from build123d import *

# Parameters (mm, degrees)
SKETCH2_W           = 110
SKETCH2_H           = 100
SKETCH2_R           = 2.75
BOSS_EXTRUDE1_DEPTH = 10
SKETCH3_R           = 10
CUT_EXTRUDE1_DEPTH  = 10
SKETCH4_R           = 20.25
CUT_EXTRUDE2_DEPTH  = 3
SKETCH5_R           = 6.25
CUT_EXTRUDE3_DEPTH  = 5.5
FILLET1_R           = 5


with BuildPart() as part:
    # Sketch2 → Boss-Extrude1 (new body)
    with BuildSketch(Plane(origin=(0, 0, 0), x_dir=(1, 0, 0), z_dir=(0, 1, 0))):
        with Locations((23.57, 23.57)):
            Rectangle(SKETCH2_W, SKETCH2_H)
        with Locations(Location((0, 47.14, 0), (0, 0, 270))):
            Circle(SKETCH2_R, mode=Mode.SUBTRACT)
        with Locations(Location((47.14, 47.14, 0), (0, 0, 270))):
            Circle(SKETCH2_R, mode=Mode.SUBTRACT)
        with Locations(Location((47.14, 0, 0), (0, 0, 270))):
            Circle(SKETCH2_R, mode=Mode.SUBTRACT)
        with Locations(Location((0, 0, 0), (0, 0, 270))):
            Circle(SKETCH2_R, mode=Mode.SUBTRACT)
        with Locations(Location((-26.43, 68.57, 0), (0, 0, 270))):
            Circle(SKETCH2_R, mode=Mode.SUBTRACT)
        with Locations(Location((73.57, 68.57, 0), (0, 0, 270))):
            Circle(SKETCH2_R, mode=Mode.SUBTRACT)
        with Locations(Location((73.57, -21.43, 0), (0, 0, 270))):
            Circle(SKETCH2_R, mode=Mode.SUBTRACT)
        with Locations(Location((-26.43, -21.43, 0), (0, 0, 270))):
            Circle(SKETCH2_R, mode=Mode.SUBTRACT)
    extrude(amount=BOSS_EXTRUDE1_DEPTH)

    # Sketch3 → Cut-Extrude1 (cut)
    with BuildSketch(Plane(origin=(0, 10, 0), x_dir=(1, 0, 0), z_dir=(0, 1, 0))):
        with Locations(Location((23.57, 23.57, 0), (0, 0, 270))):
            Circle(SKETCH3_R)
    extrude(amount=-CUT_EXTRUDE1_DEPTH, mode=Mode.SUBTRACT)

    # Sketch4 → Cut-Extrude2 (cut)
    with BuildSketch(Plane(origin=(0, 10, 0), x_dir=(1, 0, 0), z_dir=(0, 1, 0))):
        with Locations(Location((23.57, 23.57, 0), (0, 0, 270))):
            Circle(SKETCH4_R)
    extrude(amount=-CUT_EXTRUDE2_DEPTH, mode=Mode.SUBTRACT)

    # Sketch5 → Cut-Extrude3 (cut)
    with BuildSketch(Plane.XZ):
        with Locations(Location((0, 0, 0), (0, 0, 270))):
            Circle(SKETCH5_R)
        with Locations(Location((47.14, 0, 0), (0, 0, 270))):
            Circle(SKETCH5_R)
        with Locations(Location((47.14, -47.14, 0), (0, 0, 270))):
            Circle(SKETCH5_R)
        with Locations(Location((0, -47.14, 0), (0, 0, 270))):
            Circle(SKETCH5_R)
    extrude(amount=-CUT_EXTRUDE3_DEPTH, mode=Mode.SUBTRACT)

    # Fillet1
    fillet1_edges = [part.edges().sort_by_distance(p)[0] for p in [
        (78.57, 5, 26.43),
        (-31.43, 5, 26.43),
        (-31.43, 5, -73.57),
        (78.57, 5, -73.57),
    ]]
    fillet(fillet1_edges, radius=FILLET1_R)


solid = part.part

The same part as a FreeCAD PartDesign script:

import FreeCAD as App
import Part
import Sketcher
from FreeCAD import Vector


def edges_at(feature, points):
    """Names of the edges that pass closest to the given points."""
    edges = feature.Shape.Edges
    near = lambda p: min(range(len(edges)), key=lambda i: edges[i].distToShape(Part.Vertex(*p))[0])
    return sorted({f"Edge{near(p) + 1}" for p in points})


def add_polygon(sketch, points):
    """Adds a closed chain of lines whose ends are joined by coincident constraints."""
    first, n = sketch.GeometryCount, len(points)
    for a, b in zip(points, points[1:] + points[:1]):
        sketch.addGeometry(Part.LineSegment(App.Vector(*a, 0), App.Vector(*b, 0)), False)
    for i in range(n):
        sketch.addConstraint(Sketcher.Constraint("Coincident", first + i, 2, first + (i + 1) % n, 1))

doc = App.newDocument("Part")
params = doc.addObject("Spreadsheet::Sheet", "Params")
for row, (alias, value) in enumerate([
    ("sketch1_diameter", "5.5 mm"),
    ("sketch1_width", "110 mm"),
    ("sketch1_height", "100 mm"),
    ("pad1_length", "10 mm"),
    ("sketch2_diameter", "20 mm"),
    ("pocket1_length", "10 mm"),
    ("sketch3_diameter", "40.5 mm"),
    ("pocket2_length", "3 mm"),
    ("sketch4_diameter", "12.5 mm"),
    ("pocket3_length", "5.5 mm"),
    ("fillet_radius", "5 mm"),
], start=1):
    params.set(f"A{row}", alias)
    params.set(f"B{row}", "=" + value)
    params.setAlias(f"B{row}", alias)

body = doc.addObject("PartDesign::Body", "Body")

# Sketch on XZ plane
sketch1 = body.newObject("Sketcher::SketchObject", "Sketch")
sketch1.AttachmentSupport = (doc.getObject("XZ_Plane"), [""])
sketch1.MapMode = "FlatFace"
add_polygon(sketch1, [(-31.4, -73.6), (-31.4, 26.4), (78.6, 26.4), (78.6, -73.6)])  # lines 0-3
sketch1.addGeometry(Part.Circle(Vector(-26.4, 21.4, 0), Vector(0, 0, 1), 2.8), False)  # 4
sketch1.addGeometry(Part.Circle(Vector(0, 0, 0), Vector(0, 0, 1), 2.8), False)  # 5
sketch1.addGeometry(Part.Circle(Vector(73.6, 21.4, 0), Vector(0, 0, 1), 2.8), False)  # 6
sketch1.addGeometry(Part.Circle(Vector(47.1, 0, 0), Vector(0, 0, 1), 2.8), False)  # 7
sketch1.addGeometry(Part.Circle(Vector(0, -47.1, 0), Vector(0, 0, 1), 2.8), False)  # 8
sketch1.addGeometry(Part.Circle(Vector(-26.4, -68.6, 0), Vector(0, 0, 1), 2.8), False)  # 9
sketch1.addGeometry(Part.Circle(Vector(47.1, -47.1, 0), Vector(0, 0, 1), 2.8), False)  # 10
sketch1.addGeometry(Part.Circle(Vector(73.6, -68.6, 0), Vector(0, 0, 1), 2.8), False)  # 11
sketch1.addConstraint(Sketcher.Constraint("Vertical", 0))
sketch1.addConstraint(Sketcher.Constraint("Horizontal", 1))
sketch1.addConstraint(Sketcher.Constraint("Vertical", 2))
sketch1.addConstraint(Sketcher.Constraint("Horizontal", 3))
sketch1.addConstraint(Sketcher.Constraint("Coincident", 5, 3, -1, 1))
sketch1.addConstraint(Sketcher.Constraint("Equal", 4, 5))
sketch1.addConstraint(Sketcher.Constraint("Equal", 5, 6))
sketch1.addConstraint(Sketcher.Constraint("Equal", 6, 7))
sketch1.addConstraint(Sketcher.Constraint("Equal", 7, 8))
sketch1.addConstraint(Sketcher.Constraint("Equal", 8, 9))
sketch1.addConstraint(Sketcher.Constraint("Equal", 9, 10))
sketch1.addConstraint(Sketcher.Constraint("Equal", 10, 11))
sketch1.addConstraint(Sketcher.Constraint("PointOnObject", 7, 3, -1))
sketch1.addConstraint(Sketcher.Constraint("PointOnObject", 8, 3, -2))
sketch1.addConstraint(Sketcher.Constraint("Horizontal", 4, 3, 6, 3))
sketch1.addConstraint(Sketcher.Constraint("Horizontal", 8, 3, 10, 3))
sketch1.addConstraint(Sketcher.Constraint("Horizontal", 9, 3, 11, 3))
sketch1.addConstraint(Sketcher.Constraint("Vertical", 4, 3, 9, 3))
sketch1.addConstraint(Sketcher.Constraint("Vertical", 7, 3, 10, 3))
sketch1.addConstraint(Sketcher.Constraint("Vertical", 6, 3, 11, 3))
sketch1.addConstraint(Sketcher.Constraint("Diameter", 4, 5.5))
sketch1.addConstraint(Sketcher.Constraint("DistanceX", 1, 1, 1, 2, 110.0))
sketch1.addConstraint(Sketcher.Constraint("DistanceY", 0, 1, 0, 2, 100.0))
sketch1.addConstraint(Sketcher.Constraint("DistanceX", 4, 3, 6, 3, 100.0))
sketch1.addConstraint(Sketcher.Constraint("DistanceY", 9, 3, 4, 3, 90.0))
sketch1.addConstraint(Sketcher.Constraint("DistanceX", 0, 2, 4, 3, 5.0))
sketch1.addConstraint(Sketcher.Constraint("DistanceY", 4, 3, 0, 2, 5.0))
sketch1.addConstraint(Sketcher.Constraint("DistanceX", 4, 3, -1, 1, 26.43))
sketch1.addConstraint(Sketcher.Constraint("DistanceY", -1, 1, 4, 3, 21.43))
sketch1.addConstraint(Sketcher.Constraint("DistanceX", -1, 1, 7, 3, 47.14))
sketch1.addConstraint(Sketcher.Constraint("DistanceY", 8, 3, -1, 1, 47.14))
sketch1.setExpression("Constraints[24]", "Params.sketch1_diameter")
sketch1.setExpression("Constraints[25]", "Params.sketch1_width")
sketch1.setExpression("Constraints[26]", "Params.sketch1_height")
pad1 = body.newObject("PartDesign::Pad", "Pad")
pad1.Profile = sketch1
pad1.setExpression("Length", "Params.pad1_length")
pad1.Reversed = True

# Sketch on XZ plane
sketch2 = body.newObject("Sketcher::SketchObject", "Sketch001")
sketch2.AttachmentSupport = (doc.getObject("XZ_Plane"), [""])
sketch2.MapMode = "FlatFace"
sketch2.AttachmentOffset = App.Placement(Vector(0, 0, -10), App.Rotation())
sketch2.addGeometry(Part.Circle(Vector(24, -24, 0), Vector(0, 0, 1), 10), False)
sketch2.addConstraint(Sketcher.Constraint("Diameter", 0, 20.0))
sketch2.addConstraint(Sketcher.Constraint("DistanceX", -1, 1, 0, 3, 23.57))
sketch2.addConstraint(Sketcher.Constraint("DistanceY", 0, 3, -1, 1, 23.57))
sketch2.setExpression("Constraints[0]", "Params.sketch2_diameter")
pocket1 = body.newObject("PartDesign::Pocket", "Pocket")
pocket1.Profile = sketch2
pocket1.setExpression("Length", "Params.pocket1_length")
pocket1.Reversed = True

# Sketch on XZ plane
sketch3 = body.newObject("Sketcher::SketchObject", "Sketch002")
sketch3.AttachmentSupport = (doc.getObject("XZ_Plane"), [""])
sketch3.MapMode = "FlatFace"
sketch3.AttachmentOffset = App.Placement(Vector(0, 0, -10), App.Rotation())
sketch3.addGeometry(Part.Circle(Vector(24, -24, 0), Vector(0, 0, 1), 20), False)
sketch3.addConstraint(Sketcher.Constraint("Diameter", 0, 40.5))
sketch3.addConstraint(Sketcher.Constraint("DistanceX", -1, 1, 0, 3, 23.57))
sketch3.addConstraint(Sketcher.Constraint("DistanceY", 0, 3, -1, 1, 23.57))
sketch3.setExpression("Constraints[0]", "Params.sketch3_diameter")
pocket2 = body.newObject("PartDesign::Pocket", "Pocket001")
pocket2.Profile = sketch3
pocket2.setExpression("Length", "Params.pocket2_length")
pocket2.Reversed = True

# Sketch on XZ plane
sketch4 = body.newObject("Sketcher::SketchObject", "Sketch003")
sketch4.AttachmentSupport = (doc.getObject("XZ_Plane"), [""])
sketch4.MapMode = "FlatFace"
sketch4.addGeometry(Part.Circle(Vector(0, 0, 0), Vector(0, 0, 1), 6), False)
sketch4.addGeometry(Part.Circle(Vector(47, 0, 0), Vector(0, 0, 1), 6), False)
sketch4.addGeometry(Part.Circle(Vector(47, -47, 0), Vector(0, 0, 1), 6), False)
sketch4.addGeometry(Part.Circle(Vector(0, -47, 0), Vector(0, 0, 1), 6), False)
sketch4.addConstraint(Sketcher.Constraint("Coincident", 0, 3, -1, 1))
sketch4.addConstraint(Sketcher.Constraint("Equal", 0, 1))
sketch4.addConstraint(Sketcher.Constraint("Equal", 1, 2))
sketch4.addConstraint(Sketcher.Constraint("Equal", 2, 3))
sketch4.addConstraint(Sketcher.Constraint("PointOnObject", 1, 3, -1))
sketch4.addConstraint(Sketcher.Constraint("PointOnObject", 3, 3, -2))
sketch4.addConstraint(Sketcher.Constraint("Horizontal", 2, 3, 3, 3))
sketch4.addConstraint(Sketcher.Constraint("Vertical", 1, 3, 2, 3))
sketch4.addConstraint(Sketcher.Constraint("Diameter", 0, 12.5))
sketch4.addConstraint(Sketcher.Constraint("DistanceX", -1, 1, 1, 3, 47.14))
sketch4.addConstraint(Sketcher.Constraint("DistanceY", 2, 3, -1, 1, 47.14))
sketch4.setExpression("Constraints[8]", "Params.sketch4_diameter")
pocket3 = body.newObject("PartDesign::Pocket", "Pocket002")
pocket3.Profile = sketch4
pocket3.setExpression("Length", "Params.pocket3_length")
doc.recompute()

fillet = body.newObject("PartDesign::Fillet", "Fillet")
fillet.Base = (pocket3, edges_at(pocket3, [
    (78.57, 5, 26.43),
    (-31.43, 5, 26.43),
    (-31.43, 5, -73.57),
    (78.57, 5, -73.57),
]))
fillet.setExpression("Radius", "Params.fillet_radius")

doc.recompute()
